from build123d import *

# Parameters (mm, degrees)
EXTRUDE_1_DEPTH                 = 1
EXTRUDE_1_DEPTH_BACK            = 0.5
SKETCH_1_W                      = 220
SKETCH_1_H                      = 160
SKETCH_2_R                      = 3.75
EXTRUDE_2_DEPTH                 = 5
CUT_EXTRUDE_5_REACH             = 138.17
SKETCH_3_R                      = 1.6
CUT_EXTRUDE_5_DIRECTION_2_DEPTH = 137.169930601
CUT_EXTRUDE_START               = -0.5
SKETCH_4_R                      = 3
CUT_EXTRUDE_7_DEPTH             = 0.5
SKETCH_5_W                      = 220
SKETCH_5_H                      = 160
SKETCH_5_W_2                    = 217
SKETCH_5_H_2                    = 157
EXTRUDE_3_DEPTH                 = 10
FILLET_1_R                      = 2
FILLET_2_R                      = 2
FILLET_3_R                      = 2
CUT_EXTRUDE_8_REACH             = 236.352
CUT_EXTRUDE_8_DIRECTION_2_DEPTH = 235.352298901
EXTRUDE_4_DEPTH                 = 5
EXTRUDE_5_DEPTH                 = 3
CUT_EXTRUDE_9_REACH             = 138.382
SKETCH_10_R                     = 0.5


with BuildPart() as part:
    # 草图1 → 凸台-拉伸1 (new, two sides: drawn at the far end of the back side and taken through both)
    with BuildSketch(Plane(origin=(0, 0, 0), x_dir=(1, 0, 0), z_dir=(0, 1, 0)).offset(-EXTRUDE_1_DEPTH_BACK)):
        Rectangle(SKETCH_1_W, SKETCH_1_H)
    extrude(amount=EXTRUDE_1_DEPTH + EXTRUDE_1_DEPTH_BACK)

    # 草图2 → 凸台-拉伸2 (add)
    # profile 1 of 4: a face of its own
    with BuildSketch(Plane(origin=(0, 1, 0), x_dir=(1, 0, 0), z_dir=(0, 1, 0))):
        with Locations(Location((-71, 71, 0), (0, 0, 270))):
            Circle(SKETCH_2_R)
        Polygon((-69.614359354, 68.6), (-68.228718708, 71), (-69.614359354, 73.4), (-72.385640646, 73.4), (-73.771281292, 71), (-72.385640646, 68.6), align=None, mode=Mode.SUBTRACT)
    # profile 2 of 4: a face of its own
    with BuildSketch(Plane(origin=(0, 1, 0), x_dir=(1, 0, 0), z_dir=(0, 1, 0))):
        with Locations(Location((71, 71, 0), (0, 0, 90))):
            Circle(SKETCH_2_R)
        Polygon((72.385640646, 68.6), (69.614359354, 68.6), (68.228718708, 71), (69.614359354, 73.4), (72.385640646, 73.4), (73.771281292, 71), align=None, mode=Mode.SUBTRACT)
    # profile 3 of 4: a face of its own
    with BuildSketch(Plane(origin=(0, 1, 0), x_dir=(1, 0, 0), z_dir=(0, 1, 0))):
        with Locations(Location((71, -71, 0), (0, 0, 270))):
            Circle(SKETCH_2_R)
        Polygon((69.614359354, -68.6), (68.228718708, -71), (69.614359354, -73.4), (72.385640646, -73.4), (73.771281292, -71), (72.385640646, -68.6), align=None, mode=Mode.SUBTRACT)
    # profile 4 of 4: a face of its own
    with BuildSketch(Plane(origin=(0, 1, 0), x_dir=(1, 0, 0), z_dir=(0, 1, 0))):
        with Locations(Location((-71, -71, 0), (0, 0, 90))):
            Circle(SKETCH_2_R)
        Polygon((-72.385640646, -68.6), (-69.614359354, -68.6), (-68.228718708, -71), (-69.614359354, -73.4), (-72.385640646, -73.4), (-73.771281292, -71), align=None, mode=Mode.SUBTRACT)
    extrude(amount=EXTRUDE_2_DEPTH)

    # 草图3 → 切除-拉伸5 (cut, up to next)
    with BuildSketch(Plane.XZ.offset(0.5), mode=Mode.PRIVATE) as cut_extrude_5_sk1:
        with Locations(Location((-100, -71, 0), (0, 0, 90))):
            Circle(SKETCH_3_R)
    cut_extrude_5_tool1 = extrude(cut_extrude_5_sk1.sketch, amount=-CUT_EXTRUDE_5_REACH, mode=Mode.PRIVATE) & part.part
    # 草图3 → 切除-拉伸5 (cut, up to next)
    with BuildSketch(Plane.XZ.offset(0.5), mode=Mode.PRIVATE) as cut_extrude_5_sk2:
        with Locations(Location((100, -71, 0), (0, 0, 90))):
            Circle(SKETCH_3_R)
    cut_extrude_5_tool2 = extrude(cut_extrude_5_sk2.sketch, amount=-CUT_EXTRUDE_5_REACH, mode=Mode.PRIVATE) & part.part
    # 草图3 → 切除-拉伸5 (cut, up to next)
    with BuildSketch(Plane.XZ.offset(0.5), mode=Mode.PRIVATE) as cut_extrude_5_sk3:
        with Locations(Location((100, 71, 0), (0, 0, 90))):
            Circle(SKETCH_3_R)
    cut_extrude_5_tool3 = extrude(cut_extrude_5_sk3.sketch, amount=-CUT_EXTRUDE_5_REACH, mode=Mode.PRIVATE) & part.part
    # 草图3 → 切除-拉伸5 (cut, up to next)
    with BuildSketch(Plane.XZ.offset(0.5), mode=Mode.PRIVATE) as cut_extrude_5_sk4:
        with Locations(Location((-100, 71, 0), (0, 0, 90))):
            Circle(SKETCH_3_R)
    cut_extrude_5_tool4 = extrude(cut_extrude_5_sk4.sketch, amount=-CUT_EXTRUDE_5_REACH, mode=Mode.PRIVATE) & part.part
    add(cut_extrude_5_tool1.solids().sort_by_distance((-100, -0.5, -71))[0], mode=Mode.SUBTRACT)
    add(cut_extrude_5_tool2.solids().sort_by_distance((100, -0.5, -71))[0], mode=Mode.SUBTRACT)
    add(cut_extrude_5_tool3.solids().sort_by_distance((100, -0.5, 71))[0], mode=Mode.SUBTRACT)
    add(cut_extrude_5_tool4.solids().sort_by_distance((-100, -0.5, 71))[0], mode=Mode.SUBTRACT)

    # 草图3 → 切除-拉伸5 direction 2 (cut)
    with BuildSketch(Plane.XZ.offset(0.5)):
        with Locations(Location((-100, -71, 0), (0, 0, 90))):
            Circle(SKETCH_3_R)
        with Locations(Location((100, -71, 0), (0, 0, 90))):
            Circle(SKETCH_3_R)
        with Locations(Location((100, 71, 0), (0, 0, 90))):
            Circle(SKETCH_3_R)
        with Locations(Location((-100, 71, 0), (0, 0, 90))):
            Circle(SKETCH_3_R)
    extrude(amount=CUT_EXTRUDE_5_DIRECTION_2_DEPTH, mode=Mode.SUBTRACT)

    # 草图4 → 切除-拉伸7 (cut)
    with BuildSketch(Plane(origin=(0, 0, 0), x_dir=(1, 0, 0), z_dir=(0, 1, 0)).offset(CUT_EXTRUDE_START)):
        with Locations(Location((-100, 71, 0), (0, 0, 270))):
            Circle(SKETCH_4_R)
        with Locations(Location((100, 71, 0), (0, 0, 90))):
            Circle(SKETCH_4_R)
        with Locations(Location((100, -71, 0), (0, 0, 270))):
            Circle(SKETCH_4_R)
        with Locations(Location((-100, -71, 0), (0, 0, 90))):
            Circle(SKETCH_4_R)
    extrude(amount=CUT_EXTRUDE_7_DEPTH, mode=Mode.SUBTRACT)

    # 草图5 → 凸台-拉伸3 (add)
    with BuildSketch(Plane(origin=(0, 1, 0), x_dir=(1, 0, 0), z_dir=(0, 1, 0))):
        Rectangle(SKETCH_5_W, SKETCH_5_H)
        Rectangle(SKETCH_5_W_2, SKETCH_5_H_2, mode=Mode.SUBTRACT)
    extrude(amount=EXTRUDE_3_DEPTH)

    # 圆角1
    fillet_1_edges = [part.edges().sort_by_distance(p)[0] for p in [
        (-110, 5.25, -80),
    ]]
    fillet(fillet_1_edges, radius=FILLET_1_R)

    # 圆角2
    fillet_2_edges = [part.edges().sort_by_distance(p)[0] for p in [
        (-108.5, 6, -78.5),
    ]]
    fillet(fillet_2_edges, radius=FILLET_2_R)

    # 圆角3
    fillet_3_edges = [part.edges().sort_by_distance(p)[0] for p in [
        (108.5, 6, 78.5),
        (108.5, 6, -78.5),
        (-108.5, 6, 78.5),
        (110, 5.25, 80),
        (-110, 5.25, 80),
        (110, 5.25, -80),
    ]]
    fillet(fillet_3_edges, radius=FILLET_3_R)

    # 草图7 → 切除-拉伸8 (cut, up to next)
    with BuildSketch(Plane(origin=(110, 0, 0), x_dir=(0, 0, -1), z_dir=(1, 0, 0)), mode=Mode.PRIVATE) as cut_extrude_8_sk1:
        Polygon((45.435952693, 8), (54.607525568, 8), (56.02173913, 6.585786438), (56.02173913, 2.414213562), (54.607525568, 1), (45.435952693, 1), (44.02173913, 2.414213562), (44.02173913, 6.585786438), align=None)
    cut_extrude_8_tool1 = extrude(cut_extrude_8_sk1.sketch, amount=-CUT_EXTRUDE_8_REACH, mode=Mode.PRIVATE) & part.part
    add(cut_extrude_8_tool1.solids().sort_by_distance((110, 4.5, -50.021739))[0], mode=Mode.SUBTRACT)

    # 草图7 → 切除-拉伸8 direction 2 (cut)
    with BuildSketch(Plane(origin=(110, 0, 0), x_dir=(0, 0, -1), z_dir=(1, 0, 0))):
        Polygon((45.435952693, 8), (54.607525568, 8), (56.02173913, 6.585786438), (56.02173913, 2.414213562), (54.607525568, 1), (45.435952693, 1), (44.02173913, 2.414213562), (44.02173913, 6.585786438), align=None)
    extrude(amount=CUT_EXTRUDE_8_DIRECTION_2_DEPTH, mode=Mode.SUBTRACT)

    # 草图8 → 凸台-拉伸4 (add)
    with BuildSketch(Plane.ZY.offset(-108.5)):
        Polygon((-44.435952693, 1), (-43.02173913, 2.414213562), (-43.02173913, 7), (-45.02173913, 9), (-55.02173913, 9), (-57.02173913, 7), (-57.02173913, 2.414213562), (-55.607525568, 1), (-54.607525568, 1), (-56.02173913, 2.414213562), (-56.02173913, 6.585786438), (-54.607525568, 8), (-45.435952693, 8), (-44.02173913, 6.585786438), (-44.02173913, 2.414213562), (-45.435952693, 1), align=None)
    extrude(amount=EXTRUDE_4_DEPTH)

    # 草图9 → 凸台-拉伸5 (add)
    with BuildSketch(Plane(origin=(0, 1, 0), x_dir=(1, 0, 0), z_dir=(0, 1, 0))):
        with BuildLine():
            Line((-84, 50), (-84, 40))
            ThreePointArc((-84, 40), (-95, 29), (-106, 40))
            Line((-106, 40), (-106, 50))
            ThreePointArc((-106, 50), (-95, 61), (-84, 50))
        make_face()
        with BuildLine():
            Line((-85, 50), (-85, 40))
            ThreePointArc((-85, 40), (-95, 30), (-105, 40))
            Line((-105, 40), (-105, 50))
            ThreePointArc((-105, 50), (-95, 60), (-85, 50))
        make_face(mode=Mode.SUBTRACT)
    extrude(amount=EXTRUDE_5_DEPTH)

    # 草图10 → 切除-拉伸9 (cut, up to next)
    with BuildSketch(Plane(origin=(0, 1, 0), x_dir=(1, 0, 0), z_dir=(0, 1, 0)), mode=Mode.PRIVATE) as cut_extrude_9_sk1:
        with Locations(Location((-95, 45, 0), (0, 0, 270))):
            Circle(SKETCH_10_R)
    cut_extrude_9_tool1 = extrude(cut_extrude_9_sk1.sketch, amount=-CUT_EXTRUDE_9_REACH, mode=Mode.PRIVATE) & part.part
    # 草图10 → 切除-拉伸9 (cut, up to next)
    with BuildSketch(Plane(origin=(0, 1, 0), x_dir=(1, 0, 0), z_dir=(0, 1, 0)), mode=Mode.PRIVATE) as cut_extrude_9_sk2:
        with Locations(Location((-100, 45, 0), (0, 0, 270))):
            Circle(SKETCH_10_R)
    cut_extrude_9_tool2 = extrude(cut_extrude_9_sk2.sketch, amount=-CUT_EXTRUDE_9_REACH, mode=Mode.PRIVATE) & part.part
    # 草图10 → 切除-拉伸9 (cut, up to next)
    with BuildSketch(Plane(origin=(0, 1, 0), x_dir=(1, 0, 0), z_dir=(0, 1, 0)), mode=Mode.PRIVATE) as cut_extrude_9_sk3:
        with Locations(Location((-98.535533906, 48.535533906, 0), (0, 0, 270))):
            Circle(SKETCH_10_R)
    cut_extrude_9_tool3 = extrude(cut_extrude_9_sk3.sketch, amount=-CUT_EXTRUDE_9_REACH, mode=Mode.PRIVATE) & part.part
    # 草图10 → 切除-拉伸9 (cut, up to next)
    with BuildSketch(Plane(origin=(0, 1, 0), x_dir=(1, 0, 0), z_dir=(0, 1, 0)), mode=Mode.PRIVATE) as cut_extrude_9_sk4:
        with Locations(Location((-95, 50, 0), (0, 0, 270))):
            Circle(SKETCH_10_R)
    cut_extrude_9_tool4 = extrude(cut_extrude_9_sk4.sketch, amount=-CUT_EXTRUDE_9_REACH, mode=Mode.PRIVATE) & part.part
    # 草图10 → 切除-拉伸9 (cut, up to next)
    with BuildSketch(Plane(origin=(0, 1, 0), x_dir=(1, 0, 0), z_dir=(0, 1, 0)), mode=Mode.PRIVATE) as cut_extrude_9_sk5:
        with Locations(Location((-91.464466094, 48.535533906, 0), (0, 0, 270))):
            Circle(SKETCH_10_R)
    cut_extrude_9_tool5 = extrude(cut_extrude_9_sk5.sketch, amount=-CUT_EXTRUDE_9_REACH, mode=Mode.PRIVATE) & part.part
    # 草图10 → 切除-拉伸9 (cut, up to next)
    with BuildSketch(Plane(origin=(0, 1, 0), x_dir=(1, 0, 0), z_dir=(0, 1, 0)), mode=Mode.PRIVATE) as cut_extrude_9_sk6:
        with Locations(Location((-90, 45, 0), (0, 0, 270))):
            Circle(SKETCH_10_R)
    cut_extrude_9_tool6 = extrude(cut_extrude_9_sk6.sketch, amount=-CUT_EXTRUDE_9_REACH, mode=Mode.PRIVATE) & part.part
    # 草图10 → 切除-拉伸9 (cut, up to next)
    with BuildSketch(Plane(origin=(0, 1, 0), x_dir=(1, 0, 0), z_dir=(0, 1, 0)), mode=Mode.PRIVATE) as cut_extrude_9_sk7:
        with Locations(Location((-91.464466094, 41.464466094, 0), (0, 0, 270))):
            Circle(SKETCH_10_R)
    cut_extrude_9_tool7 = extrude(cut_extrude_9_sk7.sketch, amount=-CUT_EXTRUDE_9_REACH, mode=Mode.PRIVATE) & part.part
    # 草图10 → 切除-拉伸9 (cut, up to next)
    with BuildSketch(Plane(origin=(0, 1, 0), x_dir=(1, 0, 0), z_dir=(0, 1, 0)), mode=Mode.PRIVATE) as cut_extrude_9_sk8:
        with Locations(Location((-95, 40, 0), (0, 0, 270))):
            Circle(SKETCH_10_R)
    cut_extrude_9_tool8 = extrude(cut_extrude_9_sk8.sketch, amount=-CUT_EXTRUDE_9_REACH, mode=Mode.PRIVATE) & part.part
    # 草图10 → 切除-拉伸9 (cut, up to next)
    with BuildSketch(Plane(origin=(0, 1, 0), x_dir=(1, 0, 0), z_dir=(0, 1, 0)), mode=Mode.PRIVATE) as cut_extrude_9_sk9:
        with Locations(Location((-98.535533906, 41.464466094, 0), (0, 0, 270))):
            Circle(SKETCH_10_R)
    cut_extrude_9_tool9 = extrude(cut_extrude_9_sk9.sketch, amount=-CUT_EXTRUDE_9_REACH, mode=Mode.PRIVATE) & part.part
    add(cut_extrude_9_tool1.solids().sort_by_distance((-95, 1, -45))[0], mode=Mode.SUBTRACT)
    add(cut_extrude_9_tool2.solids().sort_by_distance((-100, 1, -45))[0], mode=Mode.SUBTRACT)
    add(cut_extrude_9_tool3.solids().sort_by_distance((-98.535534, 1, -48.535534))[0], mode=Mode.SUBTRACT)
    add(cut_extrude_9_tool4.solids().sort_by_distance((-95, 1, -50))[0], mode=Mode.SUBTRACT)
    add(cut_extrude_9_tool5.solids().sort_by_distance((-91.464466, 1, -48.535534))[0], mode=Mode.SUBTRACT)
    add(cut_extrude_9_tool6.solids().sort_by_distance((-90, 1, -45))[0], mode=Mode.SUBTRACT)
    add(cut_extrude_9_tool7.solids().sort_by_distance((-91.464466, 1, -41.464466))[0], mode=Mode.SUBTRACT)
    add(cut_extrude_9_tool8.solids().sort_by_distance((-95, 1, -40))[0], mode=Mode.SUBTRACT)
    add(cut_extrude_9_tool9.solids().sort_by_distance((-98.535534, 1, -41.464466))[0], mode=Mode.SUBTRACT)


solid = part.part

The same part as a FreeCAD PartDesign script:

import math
import FreeCAD as App
import Part
import Sketcher
from FreeCAD import Vector
Q = App.Units.Quantity


def edges_at(feature, points):
    """Names of the edges that pass closest to the given points."""
    edges = feature.Shape.Edges
    near = lambda p: min(range(len(edges)), key=lambda i: edges[i].distToShape(Part.Vertex(*p))[0])
    return sorted({f"Edge{near(p) + 1}" for p in points})

doc = App.newDocument("Part")
body = doc.addObject("PartDesign::Body", "Body")

sketch1 = doc.addObject("Sketcher::SketchObject", "Sketch")
body.addObject(sketch1)
sketch1.AttachmentSupport = (doc.XZ_Plane, [""])
sketch1.MapMode = "FlatFace"
sketch1.addGeometry(Part.LineSegment(Vector(-110, -80, 0), Vector(-110, 80, 0)), False)
sketch1.addGeometry(Part.LineSegment(Vector(-110, 80, 0), Vector(110, 80, 0)), False)
sketch1.addGeometry(Part.LineSegment(Vector(110, 80, 0), Vector(110, -80, 0)), False)
sketch1.addGeometry(Part.LineSegment(Vector(110, -80, 0), Vector(-110, -80, 0)), False)
sketch1.addConstraint(Sketcher.Constraint("Coincident", 0, 2, 1, 1))
sketch1.addConstraint(Sketcher.Constraint("Coincident", 1, 2, 2, 1))
sketch1.addConstraint(Sketcher.Constraint("Coincident", 2, 2, 3, 1))
sketch1.addConstraint(Sketcher.Constraint("Coincident", 3, 2, 0, 1))
sketch1.addConstraint(Sketcher.Constraint("Vertical", 0))
sketch1.addConstraint(Sketcher.Constraint("Horizontal", 1))
sketch1.addConstraint(Sketcher.Constraint("Vertical", 2))
sketch1.addConstraint(Sketcher.Constraint("Horizontal", 3))
sketch1.addConstraint(Sketcher.Constraint("Symmetric", 0, 2, 2, 2, -1, 1))
sketch1.addConstraint(Sketcher.Constraint("DistanceX", 1, 1, 1, 2, 220.0))
sketch1.addConstraint(Sketcher.Constraint("DistanceY", 0, 1, 0, 2, 160.0))
pad1 = doc.addObject("PartDesign::Pad", "Pad")
body.addObject(pad1)
pad1.Profile = sketch1
pad1.Type = "TwoLengths"
pad1.Length = 1
pad1.Length2 = 0.5
pad1.Reversed = True

sketch2 = doc.addObject("Sketcher::SketchObject", "Sketch001")
body.addObject(sketch2)
sketch2.AttachmentSupport = (doc.XZ_Plane, [""])
sketch2.MapMode = "FlatFace"
sketch2.AttachmentOffset = App.Placement(Vector(0, 0, -1), App.Rotation())
sketch2.addGeometry(Part.Circle(Vector(-71, -71, 0), Vector(0, 0, 1), 3.8), False)
sketch2.addGeometry(Part.LineSegment(Vector(-68.2, -71, 0), Vector(-69.6, -68.6, 0)), False)
sketch2.addGeometry(Part.LineSegment(Vector(-69.6, -68.6, 0), Vector(-72.4, -68.6, 0)), False)
sketch2.addGeometry(Part.LineSegment(Vector(-72.4, -68.6, 0), Vector(-73.8, -71, 0)), False)
sketch2.addGeometry(Part.LineSegment(Vector(-73.8, -71, 0), Vector(-72.4, -73.4, 0)), False)
sketch2.addGeometry(Part.LineSegment(Vector(-72.4, -73.4, 0), Vector(-69.6, -73.4, 0)), False)
sketch2.addGeometry(Part.LineSegment(Vector(-69.6, -73.4, 0), Vector(-68.2, -71, 0)), False)
sketch2.addGeometry(Part.Circle(Vector(71, -71, 0), Vector(0, 0, 1), 3.8), False)
sketch2.addGeometry(Part.LineSegment(Vector(73.8, -71, 0), Vector(72.4, -68.6, 0)), False)
sketch2.addGeometry(Part.LineSegment(Vector(72.4, -68.6, 0), Vector(69.6, -68.6, 0)), False)
sketch2.addGeometry(Part.LineSegment(Vector(69.6, -68.6, 0), Vector(68.2, -71, 0)), False)
sketch2.addGeometry(Part.LineSegment(Vector(68.2, -71, 0), Vector(69.6, -73.4, 0)), False)
sketch2.addGeometry(Part.LineSegment(Vector(69.6, -73.4, 0), Vector(72.4, -73.4, 0)), False)
sketch2.addGeometry(Part.LineSegment(Vector(72.4, -73.4, 0), Vector(73.8, -71, 0)), False)
sketch2.addGeometry(Part.Circle(Vector(71, 71, 0), Vector(0, 0, 1), 3.8), False)
sketch2.addGeometry(Part.LineSegment(Vector(68.2, 71, 0), Vector(69.6, 68.6, 0)), False)
sketch2.addGeometry(Part.LineSegment(Vector(69.6, 68.6, 0), Vector(72.4, 68.6, 0)), False)
sketch2.addGeometry(Part.LineSegment(Vector(72.4, 68.6, 0), Vector(73.8, 71, 0)), False)
sketch2.addGeometry(Part.LineSegment(Vector(73.8, 71, 0), Vector(72.4, 73.4, 0)), False)
sketch2.addGeometry(Part.LineSegment(Vector(72.4, 73.4, 0), Vector(69.6, 73.4, 0)), False)
sketch2.addGeometry(Part.LineSegment(Vector(69.6, 73.4, 0), Vector(68.2, 71, 0)), False)
sketch2.addGeometry(Part.Circle(Vector(-71, 71, 0), Vector(0, 0, 1), 3.8), False)
sketch2.addGeometry(Part.LineSegment(Vector(-73.8, 71, 0), Vector(-72.4, 68.6, 0)), False)
sketch2.addGeometry(Part.LineSegment(Vector(-72.4, 68.6, 0), Vector(-69.6, 68.6, 0)), False)
sketch2.addGeometry(Part.LineSegment(Vector(-69.6, 68.6, 0), Vector(-68.2, 71, 0)), False)
sketch2.addGeometry(Part.LineSegment(Vector(-68.2, 71, 0), Vector(-69.6, 73.4, 0)), False)
sketch2.addGeometry(Part.LineSegment(Vector(-69.6, 73.4, 0), Vector(-72.4, 73.4, 0)), False)
sketch2.addGeometry(Part.LineSegment(Vector(-72.4, 73.4, 0), Vector(-73.8, 71, 0)), False)
sketch2.addConstraint(Sketcher.Constraint("Coincident", 1, 2, 2, 1))
sketch2.addConstraint(Sketcher.Constraint("Coincident", 2, 2, 3, 1))
sketch2.addConstraint(Sketcher.Constraint("Coincident", 3, 2, 4, 1))
sketch2.addConstraint(Sketcher.Constraint("Coincident", 4, 2, 5, 1))
sketch2.addConstraint(Sketcher.Constraint("Coincident", 5, 2, 6, 1))
sketch2.addConstraint(Sketcher.Constraint("Coincident", 6, 2, 1, 1))
sketch2.addConstraint(Sketcher.Constraint("Coincident", 8, 2, 9, 1))
sketch2.addConstraint(Sketcher.Constraint("Coincident", 9, 2, 10, 1))
sketch2.addConstraint(Sketcher.Constraint("Coincident", 10, 2, 11, 1))
sketch2.addConstraint(Sketcher.Constraint("Coincident", 11, 2, 12, 1))
sketch2.addConstraint(Sketcher.Constraint("Coincident", 12, 2, 13, 1))
sketch2.addConstraint(Sketcher.Constraint("Coincident", 13, 2, 8, 1))
sketch2.addConstraint(Sketcher.Constraint("Coincident", 15, 2, 16, 1))
sketch2.addConstraint(Sketcher.Constraint("Coincident", 16, 2, 17, 1))
sketch2.addConstraint(Sketcher.Constraint("Coincident", 17, 2, 18, 1))
sketch2.addConstraint(Sketcher.Constraint("Coincident", 18, 2, 19, 1))
sketch2.addConstraint(Sketcher.Constraint("Coincident", 19, 2, 20, 1))
sketch2.addConstraint(Sketcher.Constraint("Coincident", 20, 2, 15, 1))
sketch2.addConstraint(Sketcher.Constraint("Coincident", 22, 2, 23, 1))
sketch2.addConstraint(Sketcher.Constraint("Coincident", 23, 2, 24, 1))
sketch2.addConstraint(Sketcher.Constraint("Coincident", 24, 2, 25, 1))
sketch2.addConstraint(Sketcher.Constraint("Coincident", 25, 2, 26, 1))
sketch2.addConstraint(Sketcher.Constraint("Coincident", 26, 2, 27, 1))
sketch2.addConstraint(Sketcher.Constraint("Coincident", 27, 2, 22, 1))
sketch2.addConstraint(Sketcher.Constraint("Horizontal", 2))
sketch2.addConstraint(Sketcher.Constraint("Horizontal", 5))
sketch2.addConstraint(Sketcher.Constraint("Horizontal", 9))
sketch2.addConstraint(Sketcher.Constraint("Horizontal", 12))
sketch2.addConstraint(Sketcher.Constraint("Horizontal", 16))
sketch2.addConstraint(Sketcher.Constraint("Horizontal", 19))
sketch2.addConstraint(Sketcher.Constraint("Horizontal", 23))
sketch2.addConstraint(Sketcher.Constraint("Horizontal", 26))
sketch2.addConstraint(Sketcher.Constraint("Equal", 0, 7))
sketch2.addConstraint(Sketcher.Constraint("Equal", 7, 14))
sketch2.addConstraint(Sketcher.Constraint("Equal", 14, 21))
sketch2.addConstraint(Sketcher.Constraint("Symmetric", 0, 3, 14, 3, -1, 1))
sketch2.addConstraint(Sketcher.Constraint("Symmetric", 7, 3, 21, 3, -1, 1))
sketch2.addConstraint(Sketcher.Constraint("Symmetric", 1, 2, 15, 2, -1, 1))
sketch2.addConstraint(Sketcher.Constraint("Symmetric", 3, 2, 17, 2, -1, 1))
sketch2.addConstraint(Sketcher.Constraint("Symmetric", 4, 2, 18, 2, -1, 1))
sketch2.addConstraint(Sketcher.Constraint("Symmetric", 6, 2, 20, 2, -1, 1))
sketch2.addConstraint(Sketcher.Constraint("Symmetric", 8, 2, 22, 2, -1, 1))
sketch2.addConstraint(Sketcher.Constraint("Symmetric", 10, 2, 24, 2, -1, 1))
sketch2.addConstraint(Sketcher.Constraint("Symmetric", 11, 2, 25, 2, -1, 1))
sketch2.addConstraint(Sketcher.Constraint("Symmetric", 13, 2, 27, 2, -1, 1))
sketch2.addConstraint(Sketcher.Constraint("Symmetric", 0, 3, 7, 3, -2))
sketch2.addConstraint(Sketcher.Constraint("Symmetric", 2, 2, 8, 2, -2))
sketch2.addConstraint(Sketcher.Constraint("Symmetric", 6, 2, 10, 2, -2))
sketch2.addConstraint(Sketcher.Constraint("Symmetric", 5, 2, 11, 2, -2))
sketch2.addConstraint(Sketcher.Constraint("Symmetric", 3, 2, 13, 2, -2))
sketch2.addConstraint(Sketcher.Constraint("Parallel", 1, 4))
sketch2.addConstraint(Sketcher.Constraint("Parallel", 3, 6))
sketch2.addConstraint(Sketcher.Constraint("Parallel", 4, 8))
sketch2.addConstraint(Sketcher.Constraint("Parallel", 6, 10))
sketch2.addConstraint(Sketcher.Constraint("Parallel", 10, 13))
sketch2.addConstraint(Sketcher.Constraint("Parallel", 13, 17))
sketch2.addConstraint(Sketcher.Constraint("Parallel", 17, 20))
sketch2.addConstraint(Sketcher.Constraint("Parallel", 20, 24))
sketch2.addConstraint(Sketcher.Constraint("Parallel", 24, 27))
sketch2.addConstraint(Sketcher.Constraint("Horizontal", 7, 3, 3, 2))
sketch2.addConstraint(Sketcher.Constraint("Horizontal", 3, 2, 6, 2))
sketch2.addConstraint(Sketcher.Constraint("Vertical", 2, 2, 4, 2))
sketch2.addConstraint(Sketcher.Constraint("Diameter", 0, 7.5))
sketch2.addConstraint(Sketcher.Constraint("Angle", 1, Q("120 deg")))
sketch2.addConstraint(Sketcher.Constraint("DistanceX", 0, 3, -1, 1, 71.0))
sketch2.addConstraint(Sketcher.Constraint("DistanceY", 0, 3, -1, 1, 71.0))
sketch2.addConstraint(Sketcher.Constraint("DistanceX", 1, 2, 8, 2, 142.0))
sketch2.addConstraint(Sketcher.Constraint("DistanceY", 1, 2, -1, 1, 68.6))
sketch2.addConstraint(Sketcher.Constraint("DistanceX", 2, 2, 2, 1, 2.771281))
pad2 = doc.addObject("PartDesign::Pad", "Pad001")
body.addObject(pad2)
pad2.Profile = sketch2
pad2.Length = 5
pad2.Reversed = True

sketch3 = doc.addObject("Sketcher::SketchObject", "Sketch002")
body.addObject(sketch3)
sketch3.AttachmentSupport = (doc.XZ_Plane, [""])
sketch3.MapMode = "FlatFace"
sketch3.AttachmentOffset = App.Placement(Vector(0, 0, 0.5), App.Rotation())
sketch3.addGeometry(Part.Circle(Vector(-100, -71, 0), Vector(0, 0, 1), 1.6), False)
sketch3.addConstraint(Sketcher.Constraint("Diameter", 0, 3.2))
sketch3.addConstraint(Sketcher.Constraint("DistanceX", 0, 3, -1, 1, 100.0))
sketch3.addConstraint(Sketcher.Constraint("DistanceY", 0, 3, -1, 1, 71.0))
pocket1 = doc.addObject("PartDesign::Pocket", "Pocket")
body.addObject(pocket1)
pocket1.Profile = sketch3
pocket1.Type = "UpToFirst"

sketch4 = doc.addObject("Sketcher::SketchObject", "Sketch003")
body.addObject(sketch4)
sketch4.AttachmentSupport = (doc.XZ_Plane, [""])
sketch4.MapMode = "FlatFace"
sketch4.AttachmentOffset = App.Placement(Vector(0, 0, 0.5), App.Rotation())
sketch4.addGeometry(Part.Circle(Vector(100, -71, 0), Vector(0, 0, 1), 1.6), False)
sketch4.addConstraint(Sketcher.Constraint("Diameter", 0, 3.2))
sketch4.addConstraint(Sketcher.Constraint("DistanceX", -1, 1, 0, 3, 100.0))
sketch4.addConstraint(Sketcher.Constraint("DistanceY", 0, 3, -1, 1, 71.0))
pocket2 = doc.addObject("PartDesign::Pocket", "Pocket001")
body.addObject(pocket2)
pocket2.Profile = sketch4
pocket2.Type = "UpToFirst"

sketch5 = doc.addObject("Sketcher::SketchObject", "Sketch004")
body.addObject(sketch5)
sketch5.AttachmentSupport = (doc.XZ_Plane, [""])
sketch5.MapMode = "FlatFace"
sketch5.AttachmentOffset = App.Placement(Vector(0, 0, 0.5), App.Rotation())
sketch5.addGeometry(Part.Circle(Vector(100, 71, 0), Vector(0, 0, 1), 1.6), False)
sketch5.addConstraint(Sketcher.Constraint("Diameter", 0, 3.2))
sketch5.addConstraint(Sketcher.Constraint("DistanceX", -1, 1, 0, 3, 100.0))
sketch5.addConstraint(Sketcher.Constraint("DistanceY", -1, 1, 0, 3, 71.0))
pocket3 = doc.addObject("PartDesign::Pocket", "Pocket002")
body.addObject(pocket3)
pocket3.Profile = sketch5
pocket3.Type = "UpToFirst"

sketch6 = doc.addObject("Sketcher::SketchObject", "Sketch005")
body.addObject(sketch6)
sketch6.AttachmentSupport = (doc.XZ_Plane, [""])
sketch6.MapMode = "FlatFace"
sketch6.AttachmentOffset = App.Placement(Vector(0, 0, 0.5), App.Rotation())
sketch6.addGeometry(Part.Circle(Vector(-100, 71, 0), Vector(0, 0, 1), 1.6), False)
sketch6.addConstraint(Sketcher.Constraint("Diameter", 0, 3.2))
sketch6.addConstraint(Sketcher.Constraint("DistanceX", 0, 3, -1, 1, 100.0))
sketch6.addConstraint(Sketcher.Constraint("DistanceY", -1, 1, 0, 3, 71.0))
pocket4 = doc.addObject("PartDesign::Pocket", "Pocket003")
body.addObject(pocket4)
pocket4.Profile = sketch6
pocket4.Type = "UpToFirst"

sketch7 = doc.addObject("Sketcher::SketchObject", "Sketch006")
body.addObject(sketch7)
sketch7.AttachmentSupport = (doc.XZ_Plane, [""])
sketch7.MapMode = "FlatFace"
sketch7.AttachmentOffset = App.Placement(Vector(0, 0, 0.5), App.Rotation())
sketch7.addGeometry(Part.Circle(Vector(-100, -71, 0), Vector(0, 0, 1), 1.6), False)
sketch7.addGeometry(Part.Circle(Vector(100, -71, 0), Vector(0, 0, 1), 1.6), False)
sketch7.addGeometry(Part.Circle(Vector(100, 71, 0), Vector(0, 0, 1), 1.6), False)
sketch7.addGeometry(Part.Circle(Vector(-100, 71, 0), Vector(0, 0, 1), 1.6), False)
sketch7.addConstraint(Sketcher.Constraint("Equal", 0, 1))
sketch7.addConstraint(Sketcher.Constraint("Equal", 1, 2))
sketch7.addConstraint(Sketcher.Constraint("Equal", 2, 3))
sketch7.addConstraint(Sketcher.Constraint("Symmetric", 0, 3, 2, 3, -1, 1))
sketch7.addConstraint(Sketcher.Constraint("Symmetric", 1, 3, 3, 3, -1, 1))
sketch7.addConstraint(Sketcher.Constraint("Symmetric", 0, 3, 1, 3, -2))
sketch7.addConstraint(Sketcher.Constraint("Diameter", 0, 3.2))
sketch7.addConstraint(Sketcher.Constraint("DistanceX", 0, 3, -1, 1, 100.0))
sketch7.addConstraint(Sketcher.Constraint("DistanceY", 0, 3, -1, 1, 71.0))
pocket5 = doc.addObject("PartDesign::Pocket", "Pocket004")
body.addObject(pocket5)
pocket5.Profile = sketch7
pocket5.Length = 137.169931
pocket5.Reversed = True

sketch8 = doc.addObject("Sketcher::SketchObject", "Sketch007")
body.addObject(sketch8)
sketch8.AttachmentSupport = (doc.XZ_Plane, [""])
sketch8.MapMode = "FlatFace"
sketch8.AttachmentOffset = App.Placement(Vector(0, 0, 0.5), App.Rotation())
sketch8.addGeometry(Part.Circle(Vector(-100, -71, 0), Vector(0, 0, 1), 3), False)
sketch8.addGeometry(Part.Circle(Vector(100, -71, 0), Vector(0, 0, 1), 3), False)
sketch8.addGeometry(Part.Circle(Vector(100, 71, 0), Vector(0, 0, 1), 3), False)
sketch8.addGeometry(Part.Circle(Vector(-100, 71, 0), Vector(0, 0, 1), 3), False)
sketch8.addConstraint(Sketcher.Constraint("Equal", 0, 1))
sketch8.addConstraint(Sketcher.Constraint("Equal", 1, 2))
sketch8.addConstraint(Sketcher.Constraint("Equal", 2, 3))
sketch8.addConstraint(Sketcher.Constraint("Symmetric", 0, 3, 2, 3, -1, 1))
sketch8.addConstraint(Sketcher.Constraint("Symmetric", 1, 3, 3, 3, -1, 1))
sketch8.addConstraint(Sketcher.Constraint("Symmetric", 0, 3, 1, 3, -2))
sketch8.addConstraint(Sketcher.Constraint("Diameter", 0, 6.0))
sketch8.addConstraint(Sketcher.Constraint("DistanceX", 0, 3, -1, 1, 100.0))
sketch8.addConstraint(Sketcher.Constraint("DistanceY", 0, 3, -1, 1, 71.0))
pocket6 = doc.addObject("PartDesign::Pocket", "Pocket005")
body.addObject(pocket6)
pocket6.Profile = sketch8
pocket6.Length = 0.5

sketch9 = doc.addObject("Sketcher::SketchObject", "Sketch008")
body.addObject(sketch9)
sketch9.AttachmentSupport = (doc.XZ_Plane, [""])
sketch9.MapMode = "FlatFace"
sketch9.AttachmentOffset = App.Placement(Vector(0, 0, -1), App.Rotation())
sketch9.addGeometry(Part.LineSegment(Vector(-110, -80, 0), Vector(-110, 80, 0)), False)
sketch9.addGeometry(Part.LineSegment(Vector(-110, 80, 0), Vector(110, 80, 0)), False)
sketch9.addGeometry(Part.LineSegment(Vector(110, 80, 0), Vector(110, -80, 0)), False)
sketch9.addGeometry(Part.LineSegment(Vector(110, -80, 0), Vector(-110, -80, 0)), False)
sketch9.addGeometry(Part.LineSegment(Vector(108, 78, 0), Vector(-108, 78, 0)), False)
sketch9.addGeometry(Part.LineSegment(Vector(-108, 78, 0), Vector(-108, -78, 0)), False)
sketch9.addGeometry(Part.LineSegment(Vector(-108, -78, 0), Vector(108, -78, 0)), False)
sketch9.addGeometry(Part.LineSegment(Vector(108, -78, 0), Vector(108, 78, 0)), False)
sketch9.addConstraint(Sketcher.Constraint("Coincident", 0, 2, 1, 1))
sketch9.addConstraint(Sketcher.Constraint("Coincident", 1, 2, 2, 1))
sketch9.addConstraint(Sketcher.Constraint("Coincident", 2, 2, 3, 1))
sketch9.addConstraint(Sketcher.Constraint("Coincident", 3, 2, 0, 1))
sketch9.addConstraint(Sketcher.Constraint("Coincident", 4, 2, 5, 1))
sketch9.addConstraint(Sketcher.Constraint("Coincident", 5, 2, 6, 1))
sketch9.addConstraint(Sketcher.Constraint("Coincident", 6, 2, 7, 1))
sketch9.addConstraint(Sketcher.Constraint("Coincident", 7, 2, 4, 1))
sketch9.addConstraint(Sketcher.Constraint("Vertical", 0))
sketch9.addConstraint(Sketcher.Constraint("Horizontal", 1))
sketch9.addConstraint(Sketcher.Constraint("Vertical", 2))
sketch9.addConstraint(Sketcher.Constraint("Horizontal", 3))
sketch9.addConstraint(Sketcher.Constraint("Horizontal", 4))
sketch9.addConstraint(Sketcher.Constraint("Vertical", 5))
sketch9.addConstraint(Sketcher.Constraint("Horizontal", 6))
sketch9.addConstraint(Sketcher.Constraint("Vertical", 7))
sketch9.addConstraint(Sketcher.Constraint("Symmetric", 0, 2, 2, 2, -1, 1))
sketch9.addConstraint(Sketcher.Constraint("Symmetric", 4, 2, 6, 2, -1, 1))
sketch9.addConstraint(Sketcher.Constraint("DistanceX", 1, 1, 1, 2, 220.0))
sketch9.addConstraint(Sketcher.Constraint("DistanceX", 4, 2, 4, 1, 217.0))
sketch9.addConstraint(Sketcher.Constraint("DistanceY", 0, 1, 0, 2, 160.0))
sketch9.addConstraint(Sketcher.Constraint("DistanceY", 5, 2, 5, 1, 157.0))
pad3 = doc.addObject("PartDesign::Pad", "Pad002")
body.addObject(pad3)
pad3.Profile = sketch9
pad3.Length = 10
pad3.Reversed = True
doc.recompute()

fillet = doc.addObject("PartDesign::Fillet", "Fillet")
body.addObject(fillet)
fillet.Base = (pad3, edges_at(pad3, [(-110, 5.25, -80)]))
fillet.Radius = 2
doc.recompute()

fillet2 = doc.addObject("PartDesign::Fillet", "Fillet001")
body.addObject(fillet2)
fillet2.Base = (fillet, edges_at(fillet, [(-108.5, 6, -78.5)]))
fillet2.Radius = 2
doc.recompute()

fillet3 = doc.addObject("PartDesign::Fillet", "Fillet002")
body.addObject(fillet3)
fillet3.Base = (fillet2, edges_at(fillet2, [
    (108.5, 6, 78.5),
    (108.5, 6, -78.5),
    (-108.5, 6, 78.5),
    (110, 5.25, 80),
    (-110, 5.25, 80),
    (110, 5.25, -80),
]))
fillet3.Radius = 2

sketch10 = doc.addObject("Sketcher::SketchObject", "Sketch009")
body.addObject(sketch10)
sketch10.AttachmentSupport = (doc.YZ_Plane, [""])
sketch10.MapMode = "FlatFace"
sketch10.AttachmentOffset = App.Placement(Vector(0, 0, 110), App.Rotation())
sketch10.addGeometry(Part.LineSegment(Vector(8, -54.6, 0), Vector(8, -45.4, 0)), False)
sketch10.addGeometry(Part.LineSegment(Vector(8, -45.4, 0), Vector(6.6, -44, 0)), False)
sketch10.addGeometry(Part.LineSegment(Vector(6.6, -44, 0), Vector(2.4, -44, 0)), False)
sketch10.addGeometry(Part.LineSegment(Vector(2.4, -44, 0), Vector(1, -45.4, 0)), False)
sketch10.addGeometry(Part.LineSegment(Vector(1, -45.4, 0), Vector(1, -54.6, 0)), False)
sketch10.addGeometry(Part.LineSegment(Vector(1, -54.6, 0), Vector(2.4, -56, 0)), False)
sketch10.addGeometry(Part.LineSegment(Vector(2.4, -56, 0), Vector(6.6, -56, 0)), False)
sketch10.addGeometry(Part.LineSegment(Vector(6.6, -56, 0), Vector(8, -54.6, 0)), False)
sketch10.addConstraint(Sketcher.Constraint("Coincident", 0, 2, 1, 1))
sketch10.addConstraint(Sketcher.Constraint("Coincident", 1, 2, 2, 1))
sketch10.addConstraint(Sketcher.Constraint("Coincident", 2, 2, 3, 1))
sketch10.addConstraint(Sketcher.Constraint("Coincident", 3, 2, 4, 1))
sketch10.addConstraint(Sketcher.Constraint("Coincident", 4, 2, 5, 1))
sketch10.addConstraint(Sketcher.Constraint("Coincident", 5, 2, 6, 1))
sketch10.addConstraint(Sketcher.Constraint("Coincident", 6, 2, 7, 1))
sketch10.addConstraint(Sketcher.Constraint("Coincident", 7, 2, 0, 1))
sketch10.addConstraint(Sketcher.Constraint("Vertical", 0))
sketch10.addConstraint(Sketcher.Constraint("Horizontal", 2))
sketch10.addConstraint(Sketcher.Constraint("Vertical", 4))
sketch10.addConstraint(Sketcher.Constraint("Horizontal", 6))
sketch10.addConstraint(Sketcher.Constraint("Perpendicular", 1, 3))
sketch10.addConstraint(Sketcher.Constraint("Perpendicular", 3, 5))
sketch10.addConstraint(Sketcher.Constraint("Perpendicular", 5, 7))
sketch10.addConstraint(Sketcher.Constraint("Horizontal", 0, 2, 3, 2))
sketch10.addConstraint(Sketcher.Constraint("Horizontal", 4, 2, 7, 2))
sketch10.addConstraint(Sketcher.Constraint("Vertical", 2, 2, 5, 2))
sketch10.addConstraint(Sketcher.Constraint("Vertical", 1, 2, 6, 2))
sketch10.addConstraint(Sketcher.Constraint("Distance", 1, 2.0))
sketch10.addConstraint(Sketcher.Constraint("DistanceX", -1, 1, 0, 2, 8.0))
sketch10.addConstraint(Sketcher.Constraint("DistanceX", -1, 1, 3, 2, 1.0))
sketch10.addConstraint(Sketcher.Constraint("DistanceY", 5, 2, 2, 2, 12.0))
sketch10.addConstraint(Sketcher.Constraint("DistanceY", 1, 2, -1, 1, 44.021739))
pocket7 = doc.addObject("PartDesign::Pocket", "Pocket006")
body.addObject(pocket7)
pocket7.Profile = sketch10
pocket7.Type = "UpToFirst"

sketch11 = doc.addObject("Sketcher::SketchObject", "Sketch010")
body.addObject(sketch11)
sketch11.AttachmentSupport = (doc.YZ_Plane, [""])
sketch11.MapMode = "FlatFace"
sketch11.AttachmentOffset = App.Placement(Vector(0, 0, 110), App.Rotation())
sketch11.addGeometry(Part.LineSegment(Vector(8, -54.6, 0), Vector(8, -45.4, 0)), False)
sketch11.addGeometry(Part.LineSegment(Vector(8, -45.4, 0), Vector(6.6, -44, 0)), False)
sketch11.addGeometry(Part.LineSegment(Vector(6.6, -44, 0), Vector(2.4, -44, 0)), False)
sketch11.addGeometry(Part.LineSegment(Vector(2.4, -44, 0), Vector(1, -45.4, 0)), False)
sketch11.addGeometry(Part.LineSegment(Vector(1, -45.4, 0), Vector(1, -54.6, 0)), False)
sketch11.addGeometry(Part.LineSegment(Vector(1, -54.6, 0), Vector(2.4, -56, 0)), False)
sketch11.addGeometry(Part.LineSegment(Vector(2.4, -56, 0), Vector(6.6, -56, 0)), False)
sketch11.addGeometry(Part.LineSegment(Vector(6.6, -56, 0), Vector(8, -54.6, 0)), False)
sketch11.addConstraint(Sketcher.Constraint("Coincident", 0, 2, 1, 1))
sketch11.addConstraint(Sketcher.Constraint("Coincident", 1, 2, 2, 1))
sketch11.addConstraint(Sketcher.Constraint("Coincident", 2, 2, 3, 1))
sketch11.addConstraint(Sketcher.Constraint("Coincident", 3, 2, 4, 1))
sketch11.addConstraint(Sketcher.Constraint("Coincident", 4, 2, 5, 1))
sketch11.addConstraint(Sketcher.Constraint("Coincident", 5, 2, 6, 1))
sketch11.addConstraint(Sketcher.Constraint("Coincident", 6, 2, 7, 1))
sketch11.addConstraint(Sketcher.Constraint("Coincident", 7, 2, 0, 1))
sketch11.addConstraint(Sketcher.Constraint("Vertical", 0))
sketch11.addConstraint(Sketcher.Constraint("Horizontal", 2))
sketch11.addConstraint(Sketcher.Constraint("Vertical", 4))
sketch11.addConstraint(Sketcher.Constraint("Horizontal", 6))
sketch11.addConstraint(Sketcher.Constraint("Perpendicular", 1, 3))
sketch11.addConstraint(Sketcher.Constraint("Perpendicular", 3, 5))
sketch11.addConstraint(Sketcher.Constraint("Perpendicular", 5, 7))
sketch11.addConstraint(Sketcher.Constraint("Horizontal", 0, 2, 3, 2))
sketch11.addConstraint(Sketcher.Constraint("Horizontal", 4, 2, 7, 2))
sketch11.addConstraint(Sketcher.Constraint("Vertical", 2, 2, 5, 2))
sketch11.addConstraint(Sketcher.Constraint("Vertical", 1, 2, 6, 2))
sketch11.addConstraint(Sketcher.Constraint("Distance", 1, 2.0))
sketch11.addConstraint(Sketcher.Constraint("DistanceX", -1, 1, 0, 2, 8.0))
sketch11.addConstraint(Sketcher.Constraint("DistanceX", -1, 1, 3, 2, 1.0))
sketch11.addConstraint(Sketcher.Constraint("DistanceY", 5, 2, 2, 2, 12.0))
sketch11.addConstraint(Sketcher.Constraint("DistanceY", 1, 2, -1, 1, 44.021739))
pocket8 = doc.addObject("PartDesign::Pocket", "Pocket007")
body.addObject(pocket8)
pocket8.Profile = sketch11
pocket8.Length = 235.352299
pocket8.Reversed = True

sketch12 = doc.addObject("Sketcher::SketchObject", "Sketch011")
body.addObject(sketch12)
sketch12.AttachmentSupport = (doc.YZ_Plane, [""])
sketch12.MapMode = "FlatFace"
sketch12.AttachmentOffset = App.Placement(Vector(0, 0, 108.5), App.Rotation())
sketch12.addGeometry(Part.LineSegment(Vector(1, -44.4, 0), Vector(2.4, -43, 0)), False)
sketch12.addGeometry(Part.LineSegment(Vector(2.4, -43, 0), Vector(7, -43, 0)), False)
sketch12.addGeometry(Part.LineSegment(Vector(7, -43, 0), Vector(9, -45, 0)), False)
sketch12.addGeometry(Part.LineSegment(Vector(9, -45, 0), Vector(9, -55, 0)), False)
sketch12.addGeometry(Part.LineSegment(Vector(9, -55, 0), Vector(7, -57, 0)), False)
sketch12.addGeometry(Part.LineSegment(Vector(7, -57, 0), Vector(2.4, -57, 0)), False)
sketch12.addGeometry(Part.LineSegment(Vector(2.4, -57, 0), Vector(1, -55.6, 0)), False)
sketch12.addGeometry(Part.LineSegment(Vector(1, -55.6, 0), Vector(1, -54.6, 0)), False)
sketch12.addGeometry(Part.LineSegment(Vector(1, -54.6, 0), Vector(2.4, -56, 0)), False)
sketch12.addGeometry(Part.LineSegment(Vector(2.4, -56, 0), Vector(6.6, -56, 0)), False)
sketch12.addGeometry(Part.LineSegment(Vector(6.6, -56, 0), Vector(8, -54.6, 0)), False)
sketch12.addGeometry(Part.LineSegment(Vector(8, -54.6, 0), Vector(8, -45.4, 0)), False)
sketch12.addGeometry(Part.LineSegment(Vector(8, -45.4, 0), Vector(6.6, -44, 0)), False)
sketch12.addGeometry(Part.LineSegment(Vector(6.6, -44, 0), Vector(2.4, -44, 0)), False)
sketch12.addGeometry(Part.LineSegment(Vector(2.4, -44, 0), Vector(1, -45.4, 0)), False)
sketch12.addGeometry(Part.LineSegment(Vector(1, -45.4, 0), Vector(1, -44.4, 0)), False)
sketch12.addConstraint(Sketcher.Constraint("Coincident", 0, 2, 1, 1))
sketch12.addConstraint(Sketcher.Constraint("Coincident", 1, 2, 2, 1))
sketch12.addConstraint(Sketcher.Constraint("Coincident", 2, 2, 3, 1))
sketch12.addConstraint(Sketcher.Constraint("Coincident", 3, 2, 4, 1))
sketch12.addConstraint(Sketcher.Constraint("Coincident", 4, 2, 5, 1))
sketch12.addConstraint(Sketcher.Constraint("Coincident", 5, 2, 6, 1))
sketch12.addConstraint(Sketcher.Constraint("Coincident", 6, 2, 7, 1))
sketch12.addConstraint(Sketcher.Constraint("Coincident", 7, 2, 8, 1))
sketch12.addConstraint(Sketcher.Constraint("Coincident", 8, 2, 9, 1))
sketch12.addConstraint(Sketcher.Constraint("Coincident", 9, 2, 10, 1))
sketch12.addConstraint(Sketcher.Constraint("Coincident", 10, 2, 11, 1))
sketch12.addConstraint(Sketcher.Constraint("Coincident", 11, 2, 12, 1))
sketch12.addConstraint(Sketcher.Constraint("Coincident", 12, 2, 13, 1))
sketch12.addConstraint(Sketcher.Constraint("Coincident", 13, 2, 14, 1))
sketch12.addConstraint(Sketcher.Constraint("Coincident", 14, 2, 15, 1))
sketch12.addConstraint(Sketcher.Constraint("Coincident", 15, 2, 0, 1))
sketch12.addConstraint(Sketcher.Constraint("Horizontal", 1))
sketch12.addConstraint(Sketcher.Constraint("Vertical", 3))
sketch12.addConstraint(Sketcher.Constraint("Horizontal", 5))
sketch12.addConstraint(Sketcher.Constraint("Vertical", 7))
sketch12.addConstraint(Sketcher.Constraint("Horizontal", 9))
sketch12.addConstraint(Sketcher.Constraint("Vertical", 11))
sketch12.addConstraint(Sketcher.Constraint("Horizontal", 13))
sketch12.addConstraint(Sketcher.Constraint("Vertical", 15))
sketch12.addConstraint(Sketcher.Constraint("Perpendicular", 0, 2))
sketch12.addConstraint(Sketcher.Constraint("Perpendicular", 2, 4))
sketch12.addConstraint(Sketcher.Constraint("Perpendicular", 4, 6))
sketch12.addConstraint(Sketcher.Constraint("Parallel", 6, 8))
sketch12.addConstraint(Sketcher.Constraint("Perpendicular", 8, 10))
sketch12.addConstraint(Sketcher.Constraint("Perpendicular", 10, 12))
sketch12.addConstraint(Sketcher.Constraint("Perpendicular", 12, 14))
sketch12.addConstraint(Sketcher.Constraint("Horizontal", 7, 2, 10, 2))
sketch12.addConstraint(Sketcher.Constraint("Horizontal", 11, 2, 14, 2))
sketch12.addConstraint(Sketcher.Constraint("Vertical", 1, 2, 4, 2))
sketch12.addConstraint(Sketcher.Constraint("Vertical", 0, 2, 5, 2))
sketch12.addConstraint(Sketcher.Constraint("Vertical", 5, 2, 8, 2))
sketch12.addConstraint(Sketcher.Constraint("Vertical", 9, 2, 12, 2))
sketch12.addConstraint(Sketcher.Constraint("Vertical", 8, 2, 13, 2))
sketch12.addConstraint(Sketcher.Constraint("Vertical", 7, 2, 14, 2))
sketch12.addConstraint(Sketcher.Constraint("Equal", 7, 15))
sketch12.addConstraint(Sketcher.Constraint("DistanceY", 3, 2, 3, 1, 10.0))
sketch12.addConstraint(Sketcher.Constraint("DistanceY", 7, 1, 7, 2, 1.0))
sketch12.addConstraint(Sketcher.Constraint("Distance", 0, 2.0))
sketch12.addConstraint(Sketcher.Constraint("DistanceX", -1, 1, 1, 2, 7.0))
sketch12.addConstraint(Sketcher.Constraint("DistanceX", -1, 1, 2, 2, 9.0))
sketch12.addConstraint(Sketcher.Constraint("DistanceX", -1, 1, 6, 2, 1.0))
sketch12.addConstraint(Sketcher.Constraint("DistanceX", -1, 1, 10, 2, 8.0))
sketch12.addConstraint(Sketcher.Constraint("DistanceY", 0, 2, -1, 1, 43.021739))
pad4 = doc.addObject("PartDesign::Pad", "Pad003")
body.addObject(pad4)
pad4.Profile = sketch12
pad4.Length = 5
pad4.Reversed = True

sketch13 = doc.addObject("Sketcher::SketchObject", "Sketch012")
body.addObject(sketch13)
sketch13.AttachmentSupport = (doc.XZ_Plane, [""])
sketch13.MapMode = "FlatFace"
sketch13.AttachmentOffset = App.Placement(Vector(0, 0, -1), App.Rotation())
sketch13.addGeometry(Part.LineSegment(Vector(-84, -40, 0), Vector(-84, -50, 0)), False)
sketch13.addGeometry(Part.ArcOfCircle(Part.Circle(Vector(-95, -50, 0), Vector(0, 0, 1), 11), math.radians(180), math.radians(360)), False)
sketch13.addGeometry(Part.LineSegment(Vector(-106, -50, 0), Vector(-106, -40, 0)), False)
sketch13.addGeometry(Part.ArcOfCircle(Part.Circle(Vector(-95, -40, 0), Vector(0, 0, 1), 11), math.radians(0), math.radians(180)), False)
sketch13.addGeometry(Part.LineSegment(Vector(-85, -50, 0), Vector(-85, -40, 0)), False)
sketch13.addGeometry(Part.ArcOfCircle(Part.Circle(Vector(-95, -40, 0), Vector(0, 0, 1), 10), math.radians(0), math.radians(180)), False)
sketch13.addGeometry(Part.LineSegment(Vector(-105, -40, 0), Vector(-105, -50, 0)), False)
sketch13.addGeometry(Part.ArcOfCircle(Part.Circle(Vector(-95, -50, 0), Vector(0, 0, 1), 10), math.radians(180), math.radians(360)), False)
sketch13.addConstraint(Sketcher.Constraint("Tangent", 0, 2, 1, 2))
sketch13.addConstraint(Sketcher.Constraint("Tangent", 1, 1, 2, 1))
sketch13.addConstraint(Sketcher.Constraint("Tangent", 2, 2, 3, 2))
sketch13.addConstraint(Sketcher.Constraint("Tangent", 3, 1, 0, 1))
sketch13.addConstraint(Sketcher.Constraint("Tangent", 4, 2, 5, 1))
sketch13.addConstraint(Sketcher.Constraint("Tangent", 5, 2, 6, 1))
sketch13.addConstraint(Sketcher.Constraint("Tangent", 6, 2, 7, 1))
sketch13.addConstraint(Sketcher.Constraint("Tangent", 7, 2, 4, 1))
sketch13.addConstraint(Sketcher.Constraint("Vertical", 0))
sketch13.addConstraint(Sketcher.Constraint("Vertical", 2))
sketch13.addConstraint(Sketcher.Constraint("Vertical", 4))
sketch13.addConstraint(Sketcher.Constraint("Vertical", 6))
sketch13.addConstraint(Sketcher.Constraint("Coincident", 5, 3, 3, 3))
sketch13.addConstraint(Sketcher.Constraint("Horizontal", 7, 3, 0, 2))
sketch13.addConstraint(Sketcher.Constraint("Radius", 1, 11.0))
sketch13.addConstraint(Sketcher.Constraint("Radius", 5, 10.0))
sketch13.addConstraint(Sketcher.Constraint("DistanceY", 0, 2, 0, 1, 10.0))
sketch13.addConstraint(Sketcher.Constraint("DistanceX", 1, 3, -1, 1, 95.0))
sketch13.addConstraint(Sketcher.Constraint("DistanceY", 1, 3, -1, 1, 50.0))
pad5 = doc.addObject("PartDesign::Pad", "Pad004")
body.addObject(pad5)
pad5.Profile = sketch13
pad5.Length = 3
pad5.Reversed = True

sketch14 = doc.addObject("Sketcher::SketchObject", "Sketch013")
body.addObject(sketch14)
sketch14.AttachmentSupport = (doc.XZ_Plane, [""])
sketch14.MapMode = "FlatFace"
sketch14.AttachmentOffset = App.Placement(Vector(0, 0, -1), App.Rotation())
sketch14.addGeometry(Part.Circle(Vector(-95, -45, 0), Vector(0, 0, 1), 0.5), False)
sketch14.addConstraint(Sketcher.Constraint("Diameter", 0, 1.0))
sketch14.addConstraint(Sketcher.Constraint("DistanceX", 0, 3, -1, 1, 95.0))
sketch14.addConstraint(Sketcher.Constraint("DistanceY", 0, 3, -1, 1, 45.0))
pocket9 = doc.addObject("PartDesign::Pocket", "Pocket008")
body.addObject(pocket9)
pocket9.Profile = sketch14
pocket9.Type = "UpToFirst"
pocket9.Reversed = True

sketch15 = doc.addObject("Sketcher::SketchObject", "Sketch014")
body.addObject(sketch15)
sketch15.AttachmentSupport = (doc.XZ_Plane, [""])
sketch15.MapMode = "FlatFace"
sketch15.AttachmentOffset = App.Placement(Vector(0, 0, -1), App.Rotation())
sketch15.addGeometry(Part.Circle(Vector(-100, -45, 0), Vector(0, 0, 1), 0.5), False)
sketch15.addConstraint(Sketcher.Constraint("Diameter", 0, 1.0))
sketch15.addConstraint(Sketcher.Constraint("DistanceX", 0, 3, -1, 1, 100.0))
sketch15.addConstraint(Sketcher.Constraint("DistanceY", 0, 3, -1, 1, 45.0))
pocket10 = doc.addObject("PartDesign::Pocket", "Pocket009")
body.addObject(pocket10)
pocket10.Profile = sketch15
pocket10.Type = "UpToFirst"
pocket10.Reversed = True

sketch16 = doc.addObject("Sketcher::SketchObject", "Sketch015")
body.addObject(sketch16)
sketch16.AttachmentSupport = (doc.XZ_Plane, [""])
sketch16.MapMode = "FlatFace"
sketch16.AttachmentOffset = App.Placement(Vector(0, 0, -1), App.Rotation())
sketch16.addGeometry(Part.Circle(Vector(-98.5, -48.5, 0), Vector(0, 0, 1), 0.5), False)
sketch16.addConstraint(Sketcher.Constraint("Diameter", 0, 1.0))
sketch16.addConstraint(Sketcher.Constraint("DistanceX", 0, 3, -1, 1, 98.535534))
sketch16.addConstraint(Sketcher.Constraint("DistanceY", 0, 3, -1, 1, 48.535534))
pocket11 = doc.addObject("PartDesign::Pocket", "Pocket010")
body.addObject(pocket11)
pocket11.Profile = sketch16
pocket11.Type = "UpToFirst"
pocket11.Reversed = True

sketch17 = doc.addObject("Sketcher::SketchObject", "Sketch016")
body.addObject(sketch17)
sketch17.AttachmentSupport = (doc.XZ_Plane, [""])
sketch17.MapMode = "FlatFace"
sketch17.AttachmentOffset = App.Placement(Vector(0, 0, -1), App.Rotation())
sketch17.addGeometry(Part.Circle(Vector(-95, -50, 0), Vector(0, 0, 1), 0.5), False)
sketch17.addConstraint(Sketcher.Constraint("Diameter", 0, 1.0))
sketch17.addConstraint(Sketcher.Constraint("DistanceX", 0, 3, -1, 1, 95.0))
sketch17.addConstraint(Sketcher.Constraint("DistanceY", 0, 3, -1, 1, 50.0))
pocket12 = doc.addObject("PartDesign::Pocket", "Pocket011")
body.addObject(pocket12)
pocket12.Profile = sketch17
pocket12.Type = "UpToFirst"
pocket12.Reversed = True

sketch18 = doc.addObject("Sketcher::SketchObject", "Sketch017")
body.addObject(sketch18)
sketch18.AttachmentSupport = (doc.XZ_Plane, [""])
sketch18.MapMode = "FlatFace"
sketch18.AttachmentOffset = App.Placement(Vector(0, 0, -1), App.Rotation())
sketch18.addGeometry(Part.Circle(Vector(-91.5, -48.5, 0), Vector(0, 0, 1), 0.5), False)
sketch18.addConstraint(Sketcher.Constraint("Diameter", 0, 1.0))
sketch18.addConstraint(Sketcher.Constraint("DistanceX", 0, 3, -1, 1, 91.464466))
sketch18.addConstraint(Sketcher.Constraint("DistanceY", 0, 3, -1, 1, 48.535534))
pocket13 = doc.addObject("PartDesign::Pocket", "Pocket012")
body.addObject(pocket13)
pocket13.Profile = sketch18
pocket13.Type = "UpToFirst"
pocket13.Reversed = True

sketch19 = doc.addObject("Sketcher::SketchObject", "Sketch018")
body.addObject(sketch19)
sketch19.AttachmentSupport = (doc.XZ_Plane, [""])
sketch19.MapMode = "FlatFace"
sketch19.AttachmentOffset = App.Placement(Vector(0, 0, -1), App.Rotation())
sketch19.addGeometry(Part.Circle(Vector(-90, -45, 0), Vector(0, 0, 1), 0.5), False)
sketch19.addConstraint(Sketcher.Constraint("Diameter", 0, 1.0))
sketch19.addConstraint(Sketcher.Constraint("DistanceX", 0, 3, -1, 1, 90.0))
sketch19.addConstraint(Sketcher.Constraint("DistanceY", 0, 3, -1, 1, 45.0))
pocket14 = doc.addObject("PartDesign::Pocket", "Pocket013")
body.addObject(pocket14)
pocket14.Profile = sketch19
pocket14.Type = "UpToFirst"
pocket14.Reversed = True

sketch20 = doc.addObject("Sketcher::SketchObject", "Sketch019")
body.addObject(sketch20)
sketch20.AttachmentSupport = (doc.XZ_Plane, [""])
sketch20.MapMode = "FlatFace"
sketch20.AttachmentOffset = App.Placement(Vector(0, 0, -1), App.Rotation())
sketch20.addGeometry(Part.Circle(Vector(-91.5, -41.5, 0), Vector(0, 0, 1), 0.5), False)
sketch20.addConstraint(Sketcher.Constraint("Diameter", 0, 1.0))
sketch20.addConstraint(Sketcher.Constraint("DistanceX", 0, 3, -1, 1, 91.464466))
sketch20.addConstraint(Sketcher.Constraint("DistanceY", 0, 3, -1, 1, 41.464466))
pocket15 = doc.addObject("PartDesign::Pocket", "Pocket014")
body.addObject(pocket15)
pocket15.Profile = sketch20
pocket15.Type = "UpToFirst"
pocket15.Reversed = True

sketch21 = doc.addObject("Sketcher::SketchObject", "Sketch020")
body.addObject(sketch21)
sketch21.AttachmentSupport = (doc.XZ_Plane, [""])
sketch21.MapMode = "FlatFace"
sketch21.AttachmentOffset = App.Placement(Vector(0, 0, -1), App.Rotation())
sketch21.addGeometry(Part.Circle(Vector(-95, -40, 0), Vector(0, 0, 1), 0.5), False)
sketch21.addConstraint(Sketcher.Constraint("Diameter", 0, 1.0))
sketch21.addConstraint(Sketcher.Constraint("DistanceX", 0, 3, -1, 1, 95.0))
sketch21.addConstraint(Sketcher.Constraint("DistanceY", 0, 3, -1, 1, 40.0))
pocket16 = doc.addObject("PartDesign::Pocket", "Pocket015")
body.addObject(pocket16)
pocket16.Profile = sketch21
pocket16.Type = "UpToFirst"
pocket16.Reversed = True

sketch22 = doc.addObject("Sketcher::SketchObject", "Sketch021")
body.addObject(sketch22)
sketch22.AttachmentSupport = (doc.XZ_Plane, [""])
sketch22.MapMode = "FlatFace"
sketch22.AttachmentOffset = App.Placement(Vector(0, 0, -1), App.Rotation())
sketch22.addGeometry(Part.Circle(Vector(-98.5, -41.5, 0), Vector(0, 0, 1), 0.5), False)
sketch22.addConstraint(Sketcher.Constraint("Diameter", 0, 1.0))
sketch22.addConstraint(Sketcher.Constraint("DistanceX", 0, 3, -1, 1, 98.535534))
sketch22.addConstraint(Sketcher.Constraint("DistanceY", 0, 3, -1, 1, 41.464466))
pocket17 = doc.addObject("PartDesign::Pocket", "Pocket016")
body.addObject(pocket17)
pocket17.Profile = sketch22
pocket17.Type = "UpToFirst"
pocket17.Reversed = True

doc.recompute()
